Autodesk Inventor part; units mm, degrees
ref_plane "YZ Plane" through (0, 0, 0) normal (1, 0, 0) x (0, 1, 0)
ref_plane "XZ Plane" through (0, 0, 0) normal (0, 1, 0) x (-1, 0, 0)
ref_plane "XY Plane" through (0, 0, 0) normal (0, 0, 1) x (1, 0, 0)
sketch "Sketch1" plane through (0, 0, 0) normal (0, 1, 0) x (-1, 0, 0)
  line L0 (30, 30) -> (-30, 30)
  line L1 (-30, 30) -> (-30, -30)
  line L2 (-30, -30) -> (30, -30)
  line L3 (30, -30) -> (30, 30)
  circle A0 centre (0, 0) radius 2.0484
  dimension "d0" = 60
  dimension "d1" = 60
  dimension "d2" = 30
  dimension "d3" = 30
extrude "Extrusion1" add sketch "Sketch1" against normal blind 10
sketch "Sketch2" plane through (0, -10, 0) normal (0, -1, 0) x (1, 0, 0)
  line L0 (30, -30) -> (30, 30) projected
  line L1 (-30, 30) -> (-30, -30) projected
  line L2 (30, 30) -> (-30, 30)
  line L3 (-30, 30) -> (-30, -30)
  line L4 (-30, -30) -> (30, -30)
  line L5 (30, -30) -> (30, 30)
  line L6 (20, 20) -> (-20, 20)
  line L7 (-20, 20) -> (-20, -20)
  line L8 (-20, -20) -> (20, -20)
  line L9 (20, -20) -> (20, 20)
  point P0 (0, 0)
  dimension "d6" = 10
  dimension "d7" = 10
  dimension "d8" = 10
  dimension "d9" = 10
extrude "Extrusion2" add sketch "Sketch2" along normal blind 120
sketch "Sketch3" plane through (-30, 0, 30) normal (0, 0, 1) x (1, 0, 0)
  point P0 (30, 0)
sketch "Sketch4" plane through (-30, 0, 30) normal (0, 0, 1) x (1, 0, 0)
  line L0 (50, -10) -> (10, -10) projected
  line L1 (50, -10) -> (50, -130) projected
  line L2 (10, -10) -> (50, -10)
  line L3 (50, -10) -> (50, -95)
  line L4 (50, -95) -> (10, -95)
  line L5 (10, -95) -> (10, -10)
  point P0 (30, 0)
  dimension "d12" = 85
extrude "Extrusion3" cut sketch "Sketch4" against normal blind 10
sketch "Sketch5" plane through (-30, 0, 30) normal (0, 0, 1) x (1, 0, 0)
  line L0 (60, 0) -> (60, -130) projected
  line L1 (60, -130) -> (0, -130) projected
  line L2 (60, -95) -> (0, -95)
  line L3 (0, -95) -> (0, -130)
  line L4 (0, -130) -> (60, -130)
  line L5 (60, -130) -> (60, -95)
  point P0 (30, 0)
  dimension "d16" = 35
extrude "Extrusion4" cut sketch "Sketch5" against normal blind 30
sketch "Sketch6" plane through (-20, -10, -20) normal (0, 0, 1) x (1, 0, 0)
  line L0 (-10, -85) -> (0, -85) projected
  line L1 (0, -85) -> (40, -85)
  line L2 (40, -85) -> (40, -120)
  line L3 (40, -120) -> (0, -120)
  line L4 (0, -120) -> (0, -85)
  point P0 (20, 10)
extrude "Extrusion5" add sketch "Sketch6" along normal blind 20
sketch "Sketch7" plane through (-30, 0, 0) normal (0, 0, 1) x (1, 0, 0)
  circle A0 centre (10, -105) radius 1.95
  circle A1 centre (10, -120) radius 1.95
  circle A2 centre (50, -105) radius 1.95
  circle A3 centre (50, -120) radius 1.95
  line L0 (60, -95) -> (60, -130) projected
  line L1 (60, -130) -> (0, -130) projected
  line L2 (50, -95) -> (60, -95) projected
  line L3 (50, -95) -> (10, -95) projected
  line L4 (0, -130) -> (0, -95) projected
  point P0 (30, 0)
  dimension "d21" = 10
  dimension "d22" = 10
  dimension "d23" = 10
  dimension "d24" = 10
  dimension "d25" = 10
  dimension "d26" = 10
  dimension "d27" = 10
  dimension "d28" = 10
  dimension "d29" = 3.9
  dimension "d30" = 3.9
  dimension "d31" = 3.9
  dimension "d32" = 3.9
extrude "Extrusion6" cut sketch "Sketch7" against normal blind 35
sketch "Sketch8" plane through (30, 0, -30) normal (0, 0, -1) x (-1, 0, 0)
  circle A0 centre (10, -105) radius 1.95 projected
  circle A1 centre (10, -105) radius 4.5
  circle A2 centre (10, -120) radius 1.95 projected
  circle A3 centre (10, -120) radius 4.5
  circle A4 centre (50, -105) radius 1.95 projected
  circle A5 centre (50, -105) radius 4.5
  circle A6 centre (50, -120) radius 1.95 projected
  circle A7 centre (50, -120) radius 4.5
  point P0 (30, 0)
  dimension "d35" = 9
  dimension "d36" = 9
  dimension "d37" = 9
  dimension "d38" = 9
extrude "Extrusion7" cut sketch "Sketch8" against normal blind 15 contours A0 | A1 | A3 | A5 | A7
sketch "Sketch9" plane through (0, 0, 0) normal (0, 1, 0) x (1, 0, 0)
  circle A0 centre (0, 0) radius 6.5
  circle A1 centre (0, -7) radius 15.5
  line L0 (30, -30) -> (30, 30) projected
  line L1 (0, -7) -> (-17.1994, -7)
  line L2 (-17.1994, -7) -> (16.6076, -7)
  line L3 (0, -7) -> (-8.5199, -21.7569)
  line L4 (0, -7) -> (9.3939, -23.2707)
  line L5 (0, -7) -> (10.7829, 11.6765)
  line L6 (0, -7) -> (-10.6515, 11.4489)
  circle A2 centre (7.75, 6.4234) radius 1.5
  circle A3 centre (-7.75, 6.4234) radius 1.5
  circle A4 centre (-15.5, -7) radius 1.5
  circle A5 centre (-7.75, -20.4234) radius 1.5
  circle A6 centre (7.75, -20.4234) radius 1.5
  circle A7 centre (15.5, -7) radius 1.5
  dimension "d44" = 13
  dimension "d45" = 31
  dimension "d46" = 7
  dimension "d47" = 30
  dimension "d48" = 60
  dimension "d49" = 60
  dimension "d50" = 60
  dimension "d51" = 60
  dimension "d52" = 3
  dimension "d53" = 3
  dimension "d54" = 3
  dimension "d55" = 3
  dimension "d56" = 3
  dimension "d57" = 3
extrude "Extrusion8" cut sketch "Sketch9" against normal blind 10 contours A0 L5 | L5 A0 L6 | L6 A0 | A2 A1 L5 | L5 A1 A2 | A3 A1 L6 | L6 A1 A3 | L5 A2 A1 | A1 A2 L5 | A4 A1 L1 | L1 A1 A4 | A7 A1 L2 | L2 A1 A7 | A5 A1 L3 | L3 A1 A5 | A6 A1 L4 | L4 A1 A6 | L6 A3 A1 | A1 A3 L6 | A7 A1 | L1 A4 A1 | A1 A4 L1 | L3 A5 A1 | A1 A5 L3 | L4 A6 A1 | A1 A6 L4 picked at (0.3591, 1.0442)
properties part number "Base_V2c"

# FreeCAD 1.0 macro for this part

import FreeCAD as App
import Part
import Sketcher
from FreeCAD import Vector
Q = App.Units.Quantity

doc = App.newDocument("Part")
body = doc.addObject("PartDesign::Body", "Body")

# Sketch on XZ plane
sketch1 = doc.addObject("Sketcher::SketchObject", "Sketch")
body.addObject(sketch1)
sketch1.AttachmentSupport = (doc.XZ_Plane, [""])
sketch1.MapMode = "FlatFace"
sketch1.addGeometry([
    Part.LineSegment(Vector(-30, -30, 0), Vector(-30, 30, 0)),  # 0
    Part.LineSegment(Vector(-30, 30, 0), Vector(30, 30, 0)),  # 1
    Part.LineSegment(Vector(30, 30, 0), Vector(30, -30, 0)),  # 2
    Part.LineSegment(Vector(30, -30, 0), Vector(-30, -30, 0)),  # 3
    Part.Circle(Vector(0, 0, 0), Vector(0, 0, 1), 2.0484),  # 4
], False)
sketch1.addConstraint([
    Sketcher.Constraint("Coincident", 0, 2, 1, 1),
    Sketcher.Constraint("Coincident", 1, 2, 2, 1),
    Sketcher.Constraint("Coincident", 2, 2, 3, 1),
    Sketcher.Constraint("Coincident", 3, 2, 0, 1),
    Sketcher.Constraint("Vertical", 0),
    Sketcher.Constraint("Horizontal", 1),
    Sketcher.Constraint("Vertical", 2),
    Sketcher.Constraint("Horizontal", 3),
    Sketcher.Constraint("Coincident", 4, 3, -1, 1),
    Sketcher.Constraint("Symmetric", 0, 2, 2, 2, -1, 1),
    Sketcher.Constraint("Equal", 3, 0),
    Sketcher.Constraint("DistanceX", 1, 1, 1, 2, Q("60 mm")),
    Sketcher.Constraint("Diameter", 4, Q("4.0968 mm")),
])
pad1 = doc.addObject("PartDesign::Pad", "Pad")
body.addObject(pad1)
pad1.Profile = sketch1
pad1.Length = 10

# Sketch on XZ plane
sketch2 = doc.addObject("Sketcher::SketchObject", "Sketch001")
body.addObject(sketch2)
sketch2.AttachmentSupport = (doc.XZ_Plane, [""])
sketch2.MapMode = "FlatFace"
sketch2.AttachmentOffset = App.Placement(Vector(0, 0, 10), App.Rotation())
sketch2.addGeometry([
    Part.LineSegment(Vector(-30, -30, 0), Vector(30, -30, 0)),  # 0
    Part.LineSegment(Vector(30, -30, 0), Vector(30, 30, 0)),  # 1
    Part.LineSegment(Vector(30, 30, 0), Vector(-30, 30, 0)),  # 2
    Part.LineSegment(Vector(-30, 30, 0), Vector(-30, -30, 0)),  # 3
    Part.LineSegment(Vector(-20, 20, 0), Vector(20, 20, 0)),  # 4
    Part.LineSegment(Vector(20, 20, 0), Vector(20, -20, 0)),  # 5
    Part.LineSegment(Vector(20, -20, 0), Vector(-20, -20, 0)),  # 6
    Part.LineSegment(Vector(-20, -20, 0), Vector(-20, 20, 0)),  # 7
], False)
sketch2.addConstraint([
    Sketcher.Constraint("Coincident", 0, 2, 1, 1),
    Sketcher.Constraint("Coincident", 1, 2, 2, 1),
    Sketcher.Constraint("Coincident", 2, 2, 3, 1),
    Sketcher.Constraint("Coincident", 3, 2, 0, 1),
    Sketcher.Constraint("Coincident", 4, 2, 5, 1),
    Sketcher.Constraint("Coincident", 5, 2, 6, 1),
    Sketcher.Constraint("Coincident", 6, 2, 7, 1),
    Sketcher.Constraint("Coincident", 7, 2, 4, 1),
    Sketcher.Constraint("Horizontal", 0),
    Sketcher.Constraint("Vertical", 1),
    Sketcher.Constraint("Horizontal", 2),
    Sketcher.Constraint("Vertical", 3),
    Sketcher.Constraint("Horizontal", 4),
    Sketcher.Constraint("Vertical", 5),
    Sketcher.Constraint("Horizontal", 6),
    Sketcher.Constraint("Vertical", 7),
    Sketcher.Constraint("Symmetric", 0, 2, 2, 2, -1, 1),
    Sketcher.Constraint("Symmetric", 4, 2, 6, 2, -1, 1),
    Sketcher.Constraint("Equal", 2, 1),
    Sketcher.Constraint("Equal", 6, 5),
    Sketcher.Constraint("DistanceX", 4, 2, 1, 2, Q("10 mm")),
    Sketcher.Constraint("DistanceX", 0, 1, 0, 2, Q("60 mm")),
])
pad2 = doc.addObject("PartDesign::Pad", "Pad001")
body.addObject(pad2)
pad2.Profile = sketch2
pad2.Length = 120

# Sketch on XY plane
sketch3 = doc.addObject("Sketcher::SketchObject", "Sketch002")
body.addObject(sketch3)
sketch3.AttachmentSupport = (doc.XY_Plane, [""])
sketch3.MapMode = "FlatFace"
sketch3.AttachmentOffset = App.Placement(Vector(0, 0, 30), App.Rotation())
sketch3.addGeometry([
    Part.LineSegment(Vector(20, -95, 0), Vector(20, -10, 0)),
    Part.LineSegment(Vector(20, -10, 0), Vector(-20, -10, 0)),
    Part.LineSegment(Vector(-20, -10, 0), Vector(-20, -95, 0)),
    Part.LineSegment(Vector(-20, -95, 0), Vector(20, -95, 0)),
], False)
sketch3.addConstraint([
    Sketcher.Constraint("Coincident", 0, 2, 1, 1),
    Sketcher.Constraint("Coincident", 1, 2, 2, 1),
    Sketcher.Constraint("Coincident", 2, 2, 3, 1),
    Sketcher.Constraint("Coincident", 3, 2, 0, 1),
    Sketcher.Constraint("Vertical", 0),
    Sketcher.Constraint("Horizontal", 1),
    Sketcher.Constraint("Vertical", 2),
    Sketcher.Constraint("Horizontal", 3),
    Sketcher.Constraint("DistanceY", 0, 1, 0, 2, Q("85 mm")),
    Sketcher.Constraint("DistanceX", 1, 2, 1, 1, Q("40 mm")),
    Sketcher.Constraint("DistanceX", -1, 1, 0, 2, Q("20 mm")),
    Sketcher.Constraint("DistanceY", 0, 2, -1, 1, Q("10 mm")),
])
pocket1 = doc.addObject("PartDesign::Pocket", "Pocket")
body.addObject(pocket1)
pocket1.Profile = sketch3
pocket1.Length = 10

# Sketch on XY plane
sketch4 = doc.addObject("Sketcher::SketchObject", "Sketch003")
body.addObject(sketch4)
sketch4.AttachmentSupport = (doc.XY_Plane, [""])
sketch4.MapMode = "FlatFace"
sketch4.AttachmentOffset = App.Placement(Vector(0, 0, 30), App.Rotation())
sketch4.addGeometry([
    Part.LineSegment(Vector(30, -130, 0), Vector(30, -95, 0)),
    Part.LineSegment(Vector(30, -95, 0), Vector(-30, -95, 0)),
    Part.LineSegment(Vector(-30, -95, 0), Vector(-30, -130, 0)),
    Part.LineSegment(Vector(-30, -130, 0), Vector(30, -130, 0)),
], False)
sketch4.addConstraint([
    Sketcher.Constraint("Coincident", 0, 2, 1, 1),
    Sketcher.Constraint("Coincident", 1, 2, 2, 1),
    Sketcher.Constraint("Coincident", 2, 2, 3, 1),
    Sketcher.Constraint("Coincident", 3, 2, 0, 1),
    Sketcher.Constraint("Vertical", 0),
    Sketcher.Constraint("Horizontal", 1),
    Sketcher.Constraint("Vertical", 2),
    Sketcher.Constraint("Horizontal", 3),
    Sketcher.Constraint("DistanceY", 0, 1, 0, 2, Q("35 mm")),
    Sketcher.Constraint("DistanceX", 1, 2, 1, 1, Q("60 mm")),
    Sketcher.Constraint("DistanceX", -1, 1, 0, 2, Q("30 mm")),
    Sketcher.Constraint("DistanceY", 0, 2, -1, 1, Q("95 mm")),
])
pocket2 = doc.addObject("PartDesign::Pocket", "Pocket001")
body.addObject(pocket2)
pocket2.Profile = sketch4
pocket2.Length = 30

# Sketch on XY plane
sketch5 = doc.addObject("Sketcher::SketchObject", "Sketch004")
body.addObject(sketch5)
sketch5.AttachmentSupport = (doc.XY_Plane, [""])
sketch5.MapMode = "FlatFace"
sketch5.AttachmentOffset = App.Placement(Vector(0, 0, -20), App.Rotation())
sketch5.addGeometry([
    Part.LineSegment(Vector(20, -95, 0), Vector(-20, -95, 0)),
    Part.LineSegment(Vector(-20, -95, 0), Vector(-20, -130, 0)),
    Part.LineSegment(Vector(-20, -130, 0), Vector(20, -130, 0)),
    Part.LineSegment(Vector(20, -130, 0), Vector(20, -95, 0)),
], False)
sketch5.addConstraint([
    Sketcher.Constraint("Coincident", 0, 2, 1, 1),
    Sketcher.Constraint("Coincident", 1, 2, 2, 1),
    Sketcher.Constraint("Coincident", 2, 2, 3, 1),
    Sketcher.Constraint("Coincident", 3, 2, 0, 1),
    Sketcher.Constraint("Horizontal", 0),
    Sketcher.Constraint("Vertical", 1),
    Sketcher.Constraint("Horizontal", 2),
    Sketcher.Constraint("Vertical", 3),
    Sketcher.Constraint("DistanceX", 0, 2, 0, 1, Q("40 mm")),
    Sketcher.Constraint("DistanceY", 1, 2, 1, 1, Q("35 mm")),
    Sketcher.Constraint("DistanceX", 0, 2, -1, 1, Q("20 mm")),
    Sketcher.Constraint("DistanceY", 0, 2, -1, 1, Q("95 mm")),
])
pad3 = doc.addObject("PartDesign::Pad", "Pad002")
body.addObject(pad3)
pad3.Profile = sketch5
pad3.Length = 20

# Sketch on XY plane
sketch6 = doc.addObject("Sketcher::SketchObject", "Sketch005")
body.addObject(sketch6)
sketch6.AttachmentSupport = (doc.XY_Plane, [""])
sketch6.MapMode = "FlatFace"
sketch6.addGeometry([
    Part.Circle(Vector(-20, -105, 0), Vector(0, 0, 1), 1.95),
    Part.Circle(Vector(-20, -120, 0), Vector(0, 0, 1), 1.95),
    Part.Circle(Vector(20, -105, 0), Vector(0, 0, 1), 1.95),
    Part.Circle(Vector(20, -120, 0), Vector(0, 0, 1), 1.95),
], False)
sketch6.addConstraint([
    Sketcher.Constraint("Equal", 0, 1),
    Sketcher.Constraint("Equal", 1, 2),
    Sketcher.Constraint("Equal", 2, 3),
    Sketcher.Constraint("Symmetric", 0, 3, 2, 3, -2),
    Sketcher.Constraint("Symmetric", 1, 3, 3, 3, -2),
    Sketcher.Constraint("Vertical", 0, 3, 1, 3),
    Sketcher.Constraint("Diameter", 0, Q("3.9 mm")),
    Sketcher.Constraint("DistanceX", 0, 3, -1, 1, Q("20 mm")),
    Sketcher.Constraint("DistanceY", 0, 3, -1, 1, Q("105 mm")),
    Sketcher.Constraint("DistanceY", 1, 3, -1, 1, Q("120 mm")),
])
pocket3 = doc.addObject("PartDesign::Pocket", "Pocket002")
body.addObject(pocket3)
pocket3.Profile = sketch6
pocket3.Length = 35

# Sketch on XY plane
sketch7 = doc.addObject("Sketcher::SketchObject", "Sketch006")
body.addObject(sketch7)
sketch7.AttachmentSupport = (doc.XY_Plane, [""])
sketch7.MapMode = "FlatFace"
sketch7.AttachmentOffset = App.Placement(Vector(0, 0, -30), App.Rotation())
sketch7.addGeometry([
    Part.Circle(Vector(20, -105, 0), Vector(0, 0, 1), 4.5),  # 0
    Part.Circle(Vector(20, -120, 0), Vector(0, 0, 1), 4.5),  # 1
    Part.Circle(Vector(20, -120, 0), Vector(0, 0, 1), 1.95),  # 2
    Part.Circle(Vector(-20, -105, 0), Vector(0, 0, 1), 4.5),  # 3
    Part.Circle(Vector(-20, -105, 0), Vector(0, 0, 1), 1.95),  # 4
    Part.Circle(Vector(-20, -120, 0), Vector(0, 0, 1), 4.5),  # 5
    Part.Circle(Vector(-20, -120, 0), Vector(0, 0, 1), 1.95),  # 6
], False)
sketch7.addConstraint([
    Sketcher.Constraint("Coincident", 2, 3, 1, 3),
    Sketcher.Constraint("Coincident", 4, 3, 3, 3),
    Sketcher.Constraint("Coincident", 6, 3, 5, 3),
    Sketcher.Constraint("Equal", 0, 1),
    Sketcher.Constraint("Equal", 1, 3),
    Sketcher.Constraint("Equal", 2, 4),
    Sketcher.Constraint("Equal", 3, 5),
    Sketcher.Constraint("Equal", 4, 6),
    Sketcher.Constraint("Symmetric", 0, 3, 3, 3, -2),
    Sketcher.Constraint("Symmetric", 1, 3, 5, 3, -2),
    Sketcher.Constraint("Vertical", 0, 3, 1, 3),
    Sketcher.Constraint("Diameter", 0, Q("9 mm")),
    Sketcher.Constraint("Diameter", 2, Q("3.9 mm")),
    Sketcher.Constraint("DistanceX", -1, 1, 0, 3, Q("20 mm")),
    Sketcher.Constraint("DistanceY", 0, 3, -1, 1, Q("105 mm")),
    Sketcher.Constraint("DistanceY", 1, 3, -1, 1, Q("120 mm")),
])
pocket4 = doc.addObject("PartDesign::Pocket", "Pocket003")
body.addObject(pocket4)
pocket4.Profile = sketch7
pocket4.Length = 15
pocket4.Reversed = True

# Sketch on XZ plane
sketch8 = doc.addObject("Sketcher::SketchObject", "Sketch007")
body.addObject(sketch8)
sketch8.AttachmentSupport = (doc.XZ_Plane, [""])
sketch8.MapMode = "FlatFace"
sketch8.addGeometry([
    Part.Circle(Vector(0, 0, 0), Vector(0, 0, 1), 6.5),  # 0
    Part.Circle(Vector(7.75, -6.4234, 0), Vector(0, 0, 1), 1.5),  # 1
    Part.Circle(Vector(-7.75, -6.4234, 0), Vector(0, 0, 1), 1.5),  # 2
    Part.Circle(Vector(-15.5, 7, 0), Vector(0, 0, 1), 1.5),  # 3
    Part.Circle(Vector(15.5, 7, 0), Vector(0, 0, 1), 1.5),  # 4
    Part.Circle(Vector(-7.75, 20.4234, 0), Vector(0, 0, 1), 1.5),  # 5
    Part.Circle(Vector(7.75, 20.4234, 0), Vector(0, 0, 1), 1.5),  # 6
], False)
sketch8.addConstraint([
    Sketcher.Constraint("Coincident", 0, 3, -1, 1),
    Sketcher.Constraint("Equal", 1, 2),
    Sketcher.Constraint("Equal", 2, 3),
    Sketcher.Constraint("Equal", 3, 4),
    Sketcher.Constraint("Equal", 4, 5),
    Sketcher.Constraint("Equal", 5, 6),
    Sketcher.Constraint("Symmetric", 1, 3, 2, 3, -2),
    Sketcher.Constraint("Symmetric", 3, 3, 4, 3, -2),
    Sketcher.Constraint("Symmetric", 5, 3, 6, 3, -2),
    Sketcher.Constraint("Vertical", 2, 3, 5, 3),
    Sketcher.Constraint("Diameter", 0, Q("13 mm")),
    Sketcher.Constraint("Diameter", 1, Q("3 mm")),
    Sketcher.Constraint("DistanceY", -1, 1, 3, 3, Q("7 mm")),
    Sketcher.Constraint("DistanceX", 3, 3, 4, 3, Q("31 mm")),
    Sketcher.Constraint("DistanceX", 2, 3, 1, 3, Q("15.5 mm")),
    Sketcher.Constraint("DistanceY", 1, 3, -1, 1, Q("6.4234 mm")),
    Sketcher.Constraint("DistanceY", -1, 1, 5, 3, Q("20.4234 mm")),
])
pocket5 = doc.addObject("PartDesign::Pocket", "Pocket004")
body.addObject(pocket5)
pocket5.Profile = sketch8
pocket5.Length = 10
pocket5.Reversed = True

doc.recompute()
